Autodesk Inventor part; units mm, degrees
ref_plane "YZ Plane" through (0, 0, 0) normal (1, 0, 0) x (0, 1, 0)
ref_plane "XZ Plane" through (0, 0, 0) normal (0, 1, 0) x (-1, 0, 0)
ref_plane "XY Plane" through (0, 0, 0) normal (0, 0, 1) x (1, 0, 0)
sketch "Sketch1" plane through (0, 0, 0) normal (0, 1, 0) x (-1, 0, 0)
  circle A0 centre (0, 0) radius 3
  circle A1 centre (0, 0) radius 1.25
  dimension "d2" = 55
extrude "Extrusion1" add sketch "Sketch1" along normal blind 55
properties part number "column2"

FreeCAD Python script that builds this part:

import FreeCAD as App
import Part
import Sketcher
from FreeCAD import Vector
Q = App.Units.Quantity

doc = App.newDocument("Part")
params = doc.addObject("Spreadsheet::Sheet", "Params")
for row, (alias, value) in enumerate([
    ("sketch1_diameter", "6 mm"),
    ("sketch1_diameter2", "2.5 mm"),
    ("pad1_length", "55 mm"),
], start=1):
    params.set(f"A{row}", alias)
    params.set(f"B{row}", "=" + value)
    params.setAlias(f"B{row}", alias)

body = doc.addObject("PartDesign::Body", "Body")

sketch1 = body.newObject("Sketcher::SketchObject", "Sketch")
sketch1.AttachmentSupport = (doc.getObject("XZ_Plane"), [""])
sketch1.MapMode = "FlatFace"
sketch1.addGeometry([
    Part.Circle(Vector(0, 0, 0), Vector(0, 0, 1), 3),
    Part.Circle(Vector(0, 0, 0), Vector(0, 0, 1), 1.2),
], False)
sketch1.addConstraint([
    Sketcher.Constraint("Coincident", 0, 3, -1, 1),
    Sketcher.Constraint("Coincident", 1, 3, -1, 1),
    Sketcher.Constraint("Diameter", 0, Q("6 mm")),
    Sketcher.Constraint("Diameter", 1, Q("2.5 mm")),
])
sketch1.setExpression("Constraints[2]", "Params.sketch1_diameter")
sketch1.setExpression("Constraints[3]", "Params.sketch1_diameter2")
pad1 = body.newObject("PartDesign::Pad", "Pad")
pad1.Profile = sketch1
pad1.setExpression("Length", "Params.pad1_length")
pad1.Reversed = True

doc.recompute()
